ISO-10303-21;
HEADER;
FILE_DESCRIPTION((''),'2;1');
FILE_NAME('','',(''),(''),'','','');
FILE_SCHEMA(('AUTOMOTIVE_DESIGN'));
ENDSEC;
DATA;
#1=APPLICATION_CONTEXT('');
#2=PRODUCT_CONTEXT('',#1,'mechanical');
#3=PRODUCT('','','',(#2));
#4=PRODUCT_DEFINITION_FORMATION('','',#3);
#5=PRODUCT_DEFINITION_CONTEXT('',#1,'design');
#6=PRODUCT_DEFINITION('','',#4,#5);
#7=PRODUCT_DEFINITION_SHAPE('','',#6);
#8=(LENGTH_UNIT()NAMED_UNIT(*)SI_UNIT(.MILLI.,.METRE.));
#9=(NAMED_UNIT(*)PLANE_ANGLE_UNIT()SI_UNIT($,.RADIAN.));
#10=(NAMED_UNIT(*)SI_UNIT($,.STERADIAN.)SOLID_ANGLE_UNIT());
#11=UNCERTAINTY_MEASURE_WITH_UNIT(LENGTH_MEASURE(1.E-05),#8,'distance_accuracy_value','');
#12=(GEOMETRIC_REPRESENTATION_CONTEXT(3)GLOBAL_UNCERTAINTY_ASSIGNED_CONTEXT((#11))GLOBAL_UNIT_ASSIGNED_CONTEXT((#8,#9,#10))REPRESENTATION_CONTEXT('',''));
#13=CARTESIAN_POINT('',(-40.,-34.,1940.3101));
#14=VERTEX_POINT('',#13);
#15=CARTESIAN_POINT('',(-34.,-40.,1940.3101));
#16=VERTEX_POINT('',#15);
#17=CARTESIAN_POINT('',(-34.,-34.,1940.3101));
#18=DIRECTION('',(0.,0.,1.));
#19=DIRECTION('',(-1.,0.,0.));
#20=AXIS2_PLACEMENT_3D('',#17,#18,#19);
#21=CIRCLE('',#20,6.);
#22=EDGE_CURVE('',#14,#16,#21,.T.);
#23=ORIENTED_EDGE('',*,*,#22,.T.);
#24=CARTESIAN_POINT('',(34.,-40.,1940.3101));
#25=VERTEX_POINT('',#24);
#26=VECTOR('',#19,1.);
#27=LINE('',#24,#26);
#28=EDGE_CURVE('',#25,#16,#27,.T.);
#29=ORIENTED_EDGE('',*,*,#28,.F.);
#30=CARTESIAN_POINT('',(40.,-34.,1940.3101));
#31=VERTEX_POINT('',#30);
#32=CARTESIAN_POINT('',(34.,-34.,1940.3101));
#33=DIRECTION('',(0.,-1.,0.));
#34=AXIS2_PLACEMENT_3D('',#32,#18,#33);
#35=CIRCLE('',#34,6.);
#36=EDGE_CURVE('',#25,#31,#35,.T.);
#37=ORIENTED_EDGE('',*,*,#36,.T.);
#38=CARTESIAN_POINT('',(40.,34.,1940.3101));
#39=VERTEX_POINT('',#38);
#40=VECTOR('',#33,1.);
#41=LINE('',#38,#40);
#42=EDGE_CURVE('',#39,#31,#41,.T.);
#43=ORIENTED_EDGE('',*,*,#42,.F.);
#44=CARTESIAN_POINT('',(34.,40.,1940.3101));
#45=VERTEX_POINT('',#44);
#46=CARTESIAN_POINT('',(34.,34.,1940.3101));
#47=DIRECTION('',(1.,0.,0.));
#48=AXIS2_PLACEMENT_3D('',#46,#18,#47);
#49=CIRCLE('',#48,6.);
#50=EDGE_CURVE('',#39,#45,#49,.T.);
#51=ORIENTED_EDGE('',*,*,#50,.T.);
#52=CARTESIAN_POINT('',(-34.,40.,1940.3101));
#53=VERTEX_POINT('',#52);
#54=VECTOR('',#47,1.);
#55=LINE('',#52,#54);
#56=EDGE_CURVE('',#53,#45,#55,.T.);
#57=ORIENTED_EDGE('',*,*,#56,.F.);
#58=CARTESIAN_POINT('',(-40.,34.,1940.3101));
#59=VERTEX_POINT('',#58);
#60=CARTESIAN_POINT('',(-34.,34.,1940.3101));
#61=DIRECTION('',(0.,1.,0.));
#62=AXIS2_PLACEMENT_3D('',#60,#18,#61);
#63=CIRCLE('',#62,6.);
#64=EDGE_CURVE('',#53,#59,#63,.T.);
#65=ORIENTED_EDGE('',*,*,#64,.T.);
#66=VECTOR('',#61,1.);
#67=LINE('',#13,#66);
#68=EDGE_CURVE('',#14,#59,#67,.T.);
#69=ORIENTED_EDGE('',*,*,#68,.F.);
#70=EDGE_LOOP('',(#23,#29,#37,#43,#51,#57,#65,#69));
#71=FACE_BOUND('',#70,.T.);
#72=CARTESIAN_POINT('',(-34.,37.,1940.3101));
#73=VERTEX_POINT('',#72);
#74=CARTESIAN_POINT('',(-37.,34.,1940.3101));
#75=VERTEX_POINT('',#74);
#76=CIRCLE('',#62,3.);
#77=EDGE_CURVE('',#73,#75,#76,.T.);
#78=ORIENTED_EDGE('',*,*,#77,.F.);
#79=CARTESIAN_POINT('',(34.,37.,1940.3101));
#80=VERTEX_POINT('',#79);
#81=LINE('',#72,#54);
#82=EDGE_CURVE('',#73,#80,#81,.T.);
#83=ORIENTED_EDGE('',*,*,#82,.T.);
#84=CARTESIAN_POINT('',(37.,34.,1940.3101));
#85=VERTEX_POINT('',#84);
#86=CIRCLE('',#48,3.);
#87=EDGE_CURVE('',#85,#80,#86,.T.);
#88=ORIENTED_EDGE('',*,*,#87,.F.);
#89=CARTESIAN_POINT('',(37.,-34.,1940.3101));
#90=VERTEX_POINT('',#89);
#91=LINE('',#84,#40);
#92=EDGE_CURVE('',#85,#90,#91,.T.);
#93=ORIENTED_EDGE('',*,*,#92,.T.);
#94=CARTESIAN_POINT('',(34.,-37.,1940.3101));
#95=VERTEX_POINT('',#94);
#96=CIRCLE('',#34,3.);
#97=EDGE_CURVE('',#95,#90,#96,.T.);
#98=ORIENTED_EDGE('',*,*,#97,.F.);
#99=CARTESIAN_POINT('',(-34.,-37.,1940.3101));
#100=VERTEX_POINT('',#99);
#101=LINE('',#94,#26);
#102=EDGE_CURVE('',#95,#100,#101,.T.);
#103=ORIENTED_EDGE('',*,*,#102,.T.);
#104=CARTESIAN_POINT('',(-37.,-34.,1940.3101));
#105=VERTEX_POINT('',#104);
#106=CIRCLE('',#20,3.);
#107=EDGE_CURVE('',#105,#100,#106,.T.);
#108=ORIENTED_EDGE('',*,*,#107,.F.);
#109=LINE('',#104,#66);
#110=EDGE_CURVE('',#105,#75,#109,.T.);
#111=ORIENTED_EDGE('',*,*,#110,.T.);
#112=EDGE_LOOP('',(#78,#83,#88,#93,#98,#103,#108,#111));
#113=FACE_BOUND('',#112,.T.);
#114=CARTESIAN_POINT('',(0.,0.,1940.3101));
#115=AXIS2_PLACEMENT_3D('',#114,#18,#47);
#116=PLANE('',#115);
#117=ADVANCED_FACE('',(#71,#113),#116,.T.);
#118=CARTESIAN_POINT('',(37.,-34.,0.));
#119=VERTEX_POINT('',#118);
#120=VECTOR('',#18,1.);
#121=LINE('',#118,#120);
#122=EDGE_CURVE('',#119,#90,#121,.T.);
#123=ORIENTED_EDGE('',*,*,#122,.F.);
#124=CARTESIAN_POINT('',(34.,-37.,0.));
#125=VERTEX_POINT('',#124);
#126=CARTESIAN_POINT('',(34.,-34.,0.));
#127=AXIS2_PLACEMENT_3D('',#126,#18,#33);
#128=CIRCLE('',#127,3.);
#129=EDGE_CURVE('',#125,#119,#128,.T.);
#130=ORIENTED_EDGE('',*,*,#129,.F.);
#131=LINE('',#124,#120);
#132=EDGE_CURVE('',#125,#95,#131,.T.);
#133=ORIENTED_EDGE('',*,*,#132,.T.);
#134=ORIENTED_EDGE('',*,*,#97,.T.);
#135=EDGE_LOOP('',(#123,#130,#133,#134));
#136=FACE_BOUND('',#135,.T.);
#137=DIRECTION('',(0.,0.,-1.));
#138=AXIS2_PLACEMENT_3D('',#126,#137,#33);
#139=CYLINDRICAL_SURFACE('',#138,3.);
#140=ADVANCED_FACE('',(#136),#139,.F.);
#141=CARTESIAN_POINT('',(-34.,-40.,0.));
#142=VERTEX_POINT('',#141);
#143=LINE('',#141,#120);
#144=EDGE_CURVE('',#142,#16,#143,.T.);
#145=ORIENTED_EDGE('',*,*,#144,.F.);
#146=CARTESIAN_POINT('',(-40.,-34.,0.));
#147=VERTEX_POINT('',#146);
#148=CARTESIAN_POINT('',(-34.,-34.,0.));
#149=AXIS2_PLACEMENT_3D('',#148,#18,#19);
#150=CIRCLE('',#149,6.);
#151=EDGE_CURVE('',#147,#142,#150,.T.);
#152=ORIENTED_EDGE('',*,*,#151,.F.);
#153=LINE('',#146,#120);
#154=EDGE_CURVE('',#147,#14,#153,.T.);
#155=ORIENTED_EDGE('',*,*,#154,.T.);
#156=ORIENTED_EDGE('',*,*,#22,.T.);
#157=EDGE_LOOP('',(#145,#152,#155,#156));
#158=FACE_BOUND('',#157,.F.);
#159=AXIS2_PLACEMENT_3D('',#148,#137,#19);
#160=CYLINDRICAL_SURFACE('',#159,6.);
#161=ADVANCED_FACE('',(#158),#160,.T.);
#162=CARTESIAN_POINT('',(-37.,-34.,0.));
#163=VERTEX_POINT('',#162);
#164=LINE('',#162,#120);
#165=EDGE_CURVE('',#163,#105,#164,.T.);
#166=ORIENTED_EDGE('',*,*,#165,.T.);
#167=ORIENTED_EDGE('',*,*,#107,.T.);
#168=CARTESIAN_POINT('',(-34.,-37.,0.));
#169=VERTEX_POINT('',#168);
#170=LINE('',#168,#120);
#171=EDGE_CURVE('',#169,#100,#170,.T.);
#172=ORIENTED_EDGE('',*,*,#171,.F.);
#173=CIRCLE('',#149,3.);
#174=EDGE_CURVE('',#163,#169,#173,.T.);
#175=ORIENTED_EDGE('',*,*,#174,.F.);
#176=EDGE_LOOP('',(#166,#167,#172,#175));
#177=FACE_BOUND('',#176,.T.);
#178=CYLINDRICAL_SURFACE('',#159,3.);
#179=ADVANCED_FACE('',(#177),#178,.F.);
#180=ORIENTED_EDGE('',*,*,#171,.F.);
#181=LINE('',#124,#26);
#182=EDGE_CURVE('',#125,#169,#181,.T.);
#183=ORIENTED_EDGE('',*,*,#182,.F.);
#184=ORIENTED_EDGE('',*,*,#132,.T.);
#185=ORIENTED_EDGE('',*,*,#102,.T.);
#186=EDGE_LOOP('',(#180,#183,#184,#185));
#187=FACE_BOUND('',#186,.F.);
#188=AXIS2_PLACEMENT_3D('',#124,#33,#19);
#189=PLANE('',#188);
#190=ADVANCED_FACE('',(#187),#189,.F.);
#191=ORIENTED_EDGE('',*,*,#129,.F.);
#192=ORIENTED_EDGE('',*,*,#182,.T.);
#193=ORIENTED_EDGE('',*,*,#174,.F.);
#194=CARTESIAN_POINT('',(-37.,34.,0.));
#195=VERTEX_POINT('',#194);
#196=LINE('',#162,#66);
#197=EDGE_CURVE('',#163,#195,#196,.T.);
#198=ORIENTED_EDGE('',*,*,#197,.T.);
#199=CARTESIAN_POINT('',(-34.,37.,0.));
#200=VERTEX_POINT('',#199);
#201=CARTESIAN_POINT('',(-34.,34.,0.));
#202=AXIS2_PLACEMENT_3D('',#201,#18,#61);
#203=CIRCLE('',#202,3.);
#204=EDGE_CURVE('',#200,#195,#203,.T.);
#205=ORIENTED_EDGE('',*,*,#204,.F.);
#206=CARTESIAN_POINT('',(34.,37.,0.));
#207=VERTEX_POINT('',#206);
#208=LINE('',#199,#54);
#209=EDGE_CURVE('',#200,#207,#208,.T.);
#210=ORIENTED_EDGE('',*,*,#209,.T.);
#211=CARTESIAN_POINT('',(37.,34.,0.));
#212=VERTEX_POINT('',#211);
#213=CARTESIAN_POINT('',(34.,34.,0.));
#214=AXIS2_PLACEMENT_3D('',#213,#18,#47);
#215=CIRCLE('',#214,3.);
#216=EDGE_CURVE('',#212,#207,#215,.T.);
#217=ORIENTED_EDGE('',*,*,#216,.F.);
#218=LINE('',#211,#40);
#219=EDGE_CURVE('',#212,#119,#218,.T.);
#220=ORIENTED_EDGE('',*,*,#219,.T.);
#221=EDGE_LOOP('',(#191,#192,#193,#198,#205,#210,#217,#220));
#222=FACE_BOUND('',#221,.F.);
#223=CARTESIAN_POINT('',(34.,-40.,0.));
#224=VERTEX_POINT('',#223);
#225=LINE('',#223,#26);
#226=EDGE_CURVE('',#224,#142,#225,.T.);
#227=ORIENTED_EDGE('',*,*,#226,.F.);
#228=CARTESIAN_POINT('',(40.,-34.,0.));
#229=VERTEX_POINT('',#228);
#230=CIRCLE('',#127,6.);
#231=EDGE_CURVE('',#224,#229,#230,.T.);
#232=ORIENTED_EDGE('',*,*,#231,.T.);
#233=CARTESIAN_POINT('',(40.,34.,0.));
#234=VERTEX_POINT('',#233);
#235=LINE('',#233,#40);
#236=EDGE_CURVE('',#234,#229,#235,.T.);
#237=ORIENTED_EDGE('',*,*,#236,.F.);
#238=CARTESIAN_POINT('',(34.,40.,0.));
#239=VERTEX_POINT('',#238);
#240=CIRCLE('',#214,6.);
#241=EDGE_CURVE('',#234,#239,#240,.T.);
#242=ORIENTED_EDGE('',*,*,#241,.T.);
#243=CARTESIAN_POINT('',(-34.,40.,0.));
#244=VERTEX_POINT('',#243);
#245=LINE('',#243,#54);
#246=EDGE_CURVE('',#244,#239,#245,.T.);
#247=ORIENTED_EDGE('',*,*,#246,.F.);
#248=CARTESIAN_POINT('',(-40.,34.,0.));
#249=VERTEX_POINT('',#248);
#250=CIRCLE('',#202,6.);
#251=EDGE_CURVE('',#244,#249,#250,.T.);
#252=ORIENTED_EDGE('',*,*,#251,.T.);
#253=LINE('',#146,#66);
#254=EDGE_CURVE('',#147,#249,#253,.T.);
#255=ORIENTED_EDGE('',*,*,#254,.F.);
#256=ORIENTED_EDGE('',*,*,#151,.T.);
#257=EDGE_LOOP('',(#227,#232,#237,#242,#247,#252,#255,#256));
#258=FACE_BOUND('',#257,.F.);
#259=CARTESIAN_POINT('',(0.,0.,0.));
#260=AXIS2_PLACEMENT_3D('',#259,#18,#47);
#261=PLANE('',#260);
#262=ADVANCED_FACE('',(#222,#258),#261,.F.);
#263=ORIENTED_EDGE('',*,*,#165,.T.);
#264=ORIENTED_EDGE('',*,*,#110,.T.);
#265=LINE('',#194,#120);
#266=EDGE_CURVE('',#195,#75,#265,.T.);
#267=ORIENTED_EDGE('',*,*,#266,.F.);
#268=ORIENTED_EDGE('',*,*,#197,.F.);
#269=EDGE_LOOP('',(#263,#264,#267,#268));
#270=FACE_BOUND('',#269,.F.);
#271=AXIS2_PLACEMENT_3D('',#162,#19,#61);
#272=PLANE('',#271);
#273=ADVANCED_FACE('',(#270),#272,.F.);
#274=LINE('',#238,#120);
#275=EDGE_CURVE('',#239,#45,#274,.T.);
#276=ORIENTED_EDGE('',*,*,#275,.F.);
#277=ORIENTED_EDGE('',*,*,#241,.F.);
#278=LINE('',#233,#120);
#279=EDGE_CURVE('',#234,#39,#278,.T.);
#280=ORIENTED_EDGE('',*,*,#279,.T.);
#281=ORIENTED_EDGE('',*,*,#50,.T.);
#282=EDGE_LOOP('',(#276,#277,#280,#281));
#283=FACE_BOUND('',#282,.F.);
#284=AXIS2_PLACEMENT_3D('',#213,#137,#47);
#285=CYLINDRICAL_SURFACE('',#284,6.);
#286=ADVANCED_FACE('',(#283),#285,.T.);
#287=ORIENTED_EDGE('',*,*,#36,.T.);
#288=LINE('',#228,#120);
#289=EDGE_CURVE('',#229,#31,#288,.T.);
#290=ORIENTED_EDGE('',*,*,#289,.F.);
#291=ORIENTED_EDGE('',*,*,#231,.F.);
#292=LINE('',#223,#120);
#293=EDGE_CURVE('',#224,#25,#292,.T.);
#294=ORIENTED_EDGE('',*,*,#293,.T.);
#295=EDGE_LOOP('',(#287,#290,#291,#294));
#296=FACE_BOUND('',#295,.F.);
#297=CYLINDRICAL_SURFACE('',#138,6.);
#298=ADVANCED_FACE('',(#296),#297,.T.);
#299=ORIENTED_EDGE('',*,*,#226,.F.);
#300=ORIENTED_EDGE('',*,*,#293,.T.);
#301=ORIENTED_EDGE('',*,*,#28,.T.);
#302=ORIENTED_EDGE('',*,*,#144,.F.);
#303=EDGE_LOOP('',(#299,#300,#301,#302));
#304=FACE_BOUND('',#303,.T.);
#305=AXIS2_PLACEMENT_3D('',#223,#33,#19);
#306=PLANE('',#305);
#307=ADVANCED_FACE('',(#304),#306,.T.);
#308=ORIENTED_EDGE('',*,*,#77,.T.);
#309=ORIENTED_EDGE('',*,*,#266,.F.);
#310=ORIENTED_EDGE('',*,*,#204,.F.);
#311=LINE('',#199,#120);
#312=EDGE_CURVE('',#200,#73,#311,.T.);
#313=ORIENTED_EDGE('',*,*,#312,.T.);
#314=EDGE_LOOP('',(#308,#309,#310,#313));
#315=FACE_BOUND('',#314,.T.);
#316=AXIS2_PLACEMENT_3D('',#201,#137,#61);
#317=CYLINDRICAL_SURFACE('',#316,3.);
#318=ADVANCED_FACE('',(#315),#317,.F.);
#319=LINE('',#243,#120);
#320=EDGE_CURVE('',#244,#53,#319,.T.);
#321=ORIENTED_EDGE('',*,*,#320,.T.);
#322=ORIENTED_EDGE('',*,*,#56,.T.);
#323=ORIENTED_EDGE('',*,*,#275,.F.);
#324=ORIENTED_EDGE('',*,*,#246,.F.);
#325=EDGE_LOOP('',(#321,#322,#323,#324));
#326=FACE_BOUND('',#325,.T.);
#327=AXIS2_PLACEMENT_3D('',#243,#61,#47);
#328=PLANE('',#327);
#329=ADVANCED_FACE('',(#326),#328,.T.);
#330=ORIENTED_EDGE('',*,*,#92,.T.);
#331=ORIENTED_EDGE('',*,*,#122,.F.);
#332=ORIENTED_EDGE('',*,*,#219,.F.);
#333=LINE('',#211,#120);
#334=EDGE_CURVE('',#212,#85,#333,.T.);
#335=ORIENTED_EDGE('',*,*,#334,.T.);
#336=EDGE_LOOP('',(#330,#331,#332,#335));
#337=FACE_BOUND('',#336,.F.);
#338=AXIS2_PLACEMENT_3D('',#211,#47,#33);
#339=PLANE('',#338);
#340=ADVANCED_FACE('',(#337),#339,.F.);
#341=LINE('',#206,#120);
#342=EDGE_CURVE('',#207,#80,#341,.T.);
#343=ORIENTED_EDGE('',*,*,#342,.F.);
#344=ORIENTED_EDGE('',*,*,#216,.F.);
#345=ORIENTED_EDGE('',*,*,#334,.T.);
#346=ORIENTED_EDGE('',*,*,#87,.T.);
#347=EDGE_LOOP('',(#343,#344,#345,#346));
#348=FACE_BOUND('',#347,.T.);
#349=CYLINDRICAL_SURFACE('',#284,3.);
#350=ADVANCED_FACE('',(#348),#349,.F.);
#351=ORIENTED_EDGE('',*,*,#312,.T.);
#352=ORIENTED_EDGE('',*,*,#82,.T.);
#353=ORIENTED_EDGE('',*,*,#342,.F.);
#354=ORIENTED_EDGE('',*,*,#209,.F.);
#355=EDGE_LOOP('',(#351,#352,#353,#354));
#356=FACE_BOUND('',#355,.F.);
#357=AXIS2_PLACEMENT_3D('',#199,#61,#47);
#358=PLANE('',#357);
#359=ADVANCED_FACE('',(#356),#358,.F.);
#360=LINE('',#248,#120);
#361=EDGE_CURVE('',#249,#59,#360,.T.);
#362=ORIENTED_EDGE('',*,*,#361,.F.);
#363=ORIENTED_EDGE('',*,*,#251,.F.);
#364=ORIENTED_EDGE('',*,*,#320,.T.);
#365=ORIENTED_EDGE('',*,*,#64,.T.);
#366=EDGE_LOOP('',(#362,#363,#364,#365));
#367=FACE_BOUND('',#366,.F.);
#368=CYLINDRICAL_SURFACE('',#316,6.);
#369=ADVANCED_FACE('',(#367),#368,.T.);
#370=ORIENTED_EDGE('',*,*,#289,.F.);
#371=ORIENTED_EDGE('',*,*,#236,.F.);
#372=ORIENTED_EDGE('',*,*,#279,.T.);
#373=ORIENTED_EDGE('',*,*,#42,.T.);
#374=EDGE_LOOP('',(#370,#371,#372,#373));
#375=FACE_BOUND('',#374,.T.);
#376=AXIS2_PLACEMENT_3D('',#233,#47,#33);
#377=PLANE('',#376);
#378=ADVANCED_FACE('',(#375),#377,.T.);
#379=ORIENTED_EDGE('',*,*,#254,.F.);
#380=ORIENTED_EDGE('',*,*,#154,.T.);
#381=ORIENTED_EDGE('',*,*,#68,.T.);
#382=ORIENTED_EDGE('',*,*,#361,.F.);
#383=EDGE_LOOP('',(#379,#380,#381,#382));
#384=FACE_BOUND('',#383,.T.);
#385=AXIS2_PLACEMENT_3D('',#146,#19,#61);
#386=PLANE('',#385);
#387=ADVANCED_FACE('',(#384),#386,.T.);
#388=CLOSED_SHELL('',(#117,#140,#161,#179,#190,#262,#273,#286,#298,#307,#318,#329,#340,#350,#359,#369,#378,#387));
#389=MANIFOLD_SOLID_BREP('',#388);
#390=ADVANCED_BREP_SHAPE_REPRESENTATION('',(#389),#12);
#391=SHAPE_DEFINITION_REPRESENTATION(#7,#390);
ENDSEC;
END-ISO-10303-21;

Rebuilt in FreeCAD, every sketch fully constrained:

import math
import FreeCAD as App
import Part
import Sketcher

V = App.Vector

doc = App.newDocument("Part")
body = doc.addObject("PartDesign::Body", "Body")

sketch1 = body.newObject("Sketcher::SketchObject", "Sketch")
sketch1.AttachmentSupport = (doc.getObject("XY_Plane"), [""])
sketch1.MapMode = "FlatFace"
sketch1.addGeometry(Part.LineSegment(V(-40, 34, 0), V(-40, -34, 0)), False)
sketch1.addGeometry(Part.ArcOfCircle(Part.Circle(V(-34, -34, 0), V(0, 0, 1), 6), math.radians(180), math.radians(270)), False)
sketch1.addGeometry(Part.LineSegment(V(-34, -40, 0), V(34, -40, 0)), False)
sketch1.addGeometry(Part.ArcOfCircle(Part.Circle(V(34, -34, 0), V(0, 0, 1), 6), math.radians(-90), math.radians(0)), False)
sketch1.addGeometry(Part.LineSegment(V(40, -34, 0), V(40, 34, 0)), False)
sketch1.addGeometry(Part.ArcOfCircle(Part.Circle(V(34, 34, 0), V(0, 0, 1), 6), math.radians(0), math.radians(90)), False)
sketch1.addGeometry(Part.LineSegment(V(34, 40, 0), V(-34, 40, 0)), False)
sketch1.addGeometry(Part.ArcOfCircle(Part.Circle(V(-34, 34, 0), V(0, 0, 1), 6), math.radians(90), math.radians(180)), False)
sketch1.addGeometry(Part.ArcOfCircle(Part.Circle(V(-34, 34, 0), V(0, 0, 1), 3), math.radians(90), math.radians(180)), False)
sketch1.addGeometry(Part.LineSegment(V(-34, 37, 0), V(34, 37, 0)), False)
sketch1.addGeometry(Part.ArcOfCircle(Part.Circle(V(34, 34, 0), V(0, 0, 1), 3), math.radians(0), math.radians(90)), False)
sketch1.addGeometry(Part.LineSegment(V(37, 34, 0), V(37, -34, 0)), False)
sketch1.addGeometry(Part.ArcOfCircle(Part.Circle(V(34, -34, 0), V(0, 0, 1), 3), math.radians(-90), math.radians(0)), False)
sketch1.addGeometry(Part.LineSegment(V(34, -37, 0), V(-34, -37, 0)), False)
sketch1.addGeometry(Part.ArcOfCircle(Part.Circle(V(-34, -34, 0), V(0, 0, 1), 3), math.radians(180), math.radians(270)), False)
sketch1.addGeometry(Part.LineSegment(V(-37, -34, 0), V(-37, 34, 0)), False)
sketch1.addConstraint(Sketcher.Constraint("Tangent", 0, 2, 1, 1))
sketch1.addConstraint(Sketcher.Constraint("Tangent", 1, 2, 2, 1))
sketch1.addConstraint(Sketcher.Constraint("Tangent", 2, 2, 3, 1))
sketch1.addConstraint(Sketcher.Constraint("Tangent", 3, 2, 4, 1))
sketch1.addConstraint(Sketcher.Constraint("Tangent", 4, 2, 5, 1))
sketch1.addConstraint(Sketcher.Constraint("Tangent", 5, 2, 6, 1))
sketch1.addConstraint(Sketcher.Constraint("Tangent", 6, 2, 7, 1))
sketch1.addConstraint(Sketcher.Constraint("Tangent", 7, 2, 0, 1))
sketch1.addConstraint(Sketcher.Constraint("Tangent", 8, 1, 9, 1))
sketch1.addConstraint(Sketcher.Constraint("Tangent", 9, 2, 10, 2))
sketch1.addConstraint(Sketcher.Constraint("Tangent", 10, 1, 11, 1))
sketch1.addConstraint(Sketcher.Constraint("Tangent", 11, 2, 12, 2))
sketch1.addConstraint(Sketcher.Constraint("Tangent", 12, 1, 13, 1))
sketch1.addConstraint(Sketcher.Constraint("Tangent", 13, 2, 14, 2))
sketch1.addConstraint(Sketcher.Constraint("Tangent", 14, 1, 15, 1))
sketch1.addConstraint(Sketcher.Constraint("Tangent", 15, 2, 8, 2))
sketch1.addConstraint(Sketcher.Constraint("Vertical", 0))
sketch1.addConstraint(Sketcher.Constraint("Horizontal", 2))
sketch1.addConstraint(Sketcher.Constraint("Vertical", 4))
sketch1.addConstraint(Sketcher.Constraint("Horizontal", 6))
sketch1.addConstraint(Sketcher.Constraint("Horizontal", 9))
sketch1.addConstraint(Sketcher.Constraint("Vertical", 11))
sketch1.addConstraint(Sketcher.Constraint("Horizontal", 13))
sketch1.addConstraint(Sketcher.Constraint("Vertical", 15))
sketch1.addConstraint(Sketcher.Constraint("Coincident", 8, 3, 7, 3))
sketch1.addConstraint(Sketcher.Constraint("Coincident", 10, 3, 5, 3))
sketch1.addConstraint(Sketcher.Constraint("Coincident", 12, 3, 3, 3))
sketch1.addConstraint(Sketcher.Constraint("Equal", 1, 3))
sketch1.addConstraint(Sketcher.Constraint("Equal", 3, 5))
sketch1.addConstraint(Sketcher.Constraint("Equal", 5, 7))
sketch1.addConstraint(Sketcher.Constraint("Equal", 12, 14))
sketch1.addConstraint(Sketcher.Constraint("Symmetric", 1, 3, 5, 3, -1, 1))
sketch1.addConstraint(Sketcher.Constraint("Equal", 13, 0))
sketch1.addConstraint(Sketcher.Constraint("Radius", 1, 6.0))
sketch1.addConstraint(Sketcher.Constraint("Radius", 8, 3.0))
sketch1.addConstraint(Sketcher.Constraint("DistanceX", 0, 2, -1, 1, 40.0))
pad1 = body.newObject("PartDesign::Pad", "Pad")
pad1.Profile = sketch1
pad1.Length = 1940.3101

doc.recompute()
